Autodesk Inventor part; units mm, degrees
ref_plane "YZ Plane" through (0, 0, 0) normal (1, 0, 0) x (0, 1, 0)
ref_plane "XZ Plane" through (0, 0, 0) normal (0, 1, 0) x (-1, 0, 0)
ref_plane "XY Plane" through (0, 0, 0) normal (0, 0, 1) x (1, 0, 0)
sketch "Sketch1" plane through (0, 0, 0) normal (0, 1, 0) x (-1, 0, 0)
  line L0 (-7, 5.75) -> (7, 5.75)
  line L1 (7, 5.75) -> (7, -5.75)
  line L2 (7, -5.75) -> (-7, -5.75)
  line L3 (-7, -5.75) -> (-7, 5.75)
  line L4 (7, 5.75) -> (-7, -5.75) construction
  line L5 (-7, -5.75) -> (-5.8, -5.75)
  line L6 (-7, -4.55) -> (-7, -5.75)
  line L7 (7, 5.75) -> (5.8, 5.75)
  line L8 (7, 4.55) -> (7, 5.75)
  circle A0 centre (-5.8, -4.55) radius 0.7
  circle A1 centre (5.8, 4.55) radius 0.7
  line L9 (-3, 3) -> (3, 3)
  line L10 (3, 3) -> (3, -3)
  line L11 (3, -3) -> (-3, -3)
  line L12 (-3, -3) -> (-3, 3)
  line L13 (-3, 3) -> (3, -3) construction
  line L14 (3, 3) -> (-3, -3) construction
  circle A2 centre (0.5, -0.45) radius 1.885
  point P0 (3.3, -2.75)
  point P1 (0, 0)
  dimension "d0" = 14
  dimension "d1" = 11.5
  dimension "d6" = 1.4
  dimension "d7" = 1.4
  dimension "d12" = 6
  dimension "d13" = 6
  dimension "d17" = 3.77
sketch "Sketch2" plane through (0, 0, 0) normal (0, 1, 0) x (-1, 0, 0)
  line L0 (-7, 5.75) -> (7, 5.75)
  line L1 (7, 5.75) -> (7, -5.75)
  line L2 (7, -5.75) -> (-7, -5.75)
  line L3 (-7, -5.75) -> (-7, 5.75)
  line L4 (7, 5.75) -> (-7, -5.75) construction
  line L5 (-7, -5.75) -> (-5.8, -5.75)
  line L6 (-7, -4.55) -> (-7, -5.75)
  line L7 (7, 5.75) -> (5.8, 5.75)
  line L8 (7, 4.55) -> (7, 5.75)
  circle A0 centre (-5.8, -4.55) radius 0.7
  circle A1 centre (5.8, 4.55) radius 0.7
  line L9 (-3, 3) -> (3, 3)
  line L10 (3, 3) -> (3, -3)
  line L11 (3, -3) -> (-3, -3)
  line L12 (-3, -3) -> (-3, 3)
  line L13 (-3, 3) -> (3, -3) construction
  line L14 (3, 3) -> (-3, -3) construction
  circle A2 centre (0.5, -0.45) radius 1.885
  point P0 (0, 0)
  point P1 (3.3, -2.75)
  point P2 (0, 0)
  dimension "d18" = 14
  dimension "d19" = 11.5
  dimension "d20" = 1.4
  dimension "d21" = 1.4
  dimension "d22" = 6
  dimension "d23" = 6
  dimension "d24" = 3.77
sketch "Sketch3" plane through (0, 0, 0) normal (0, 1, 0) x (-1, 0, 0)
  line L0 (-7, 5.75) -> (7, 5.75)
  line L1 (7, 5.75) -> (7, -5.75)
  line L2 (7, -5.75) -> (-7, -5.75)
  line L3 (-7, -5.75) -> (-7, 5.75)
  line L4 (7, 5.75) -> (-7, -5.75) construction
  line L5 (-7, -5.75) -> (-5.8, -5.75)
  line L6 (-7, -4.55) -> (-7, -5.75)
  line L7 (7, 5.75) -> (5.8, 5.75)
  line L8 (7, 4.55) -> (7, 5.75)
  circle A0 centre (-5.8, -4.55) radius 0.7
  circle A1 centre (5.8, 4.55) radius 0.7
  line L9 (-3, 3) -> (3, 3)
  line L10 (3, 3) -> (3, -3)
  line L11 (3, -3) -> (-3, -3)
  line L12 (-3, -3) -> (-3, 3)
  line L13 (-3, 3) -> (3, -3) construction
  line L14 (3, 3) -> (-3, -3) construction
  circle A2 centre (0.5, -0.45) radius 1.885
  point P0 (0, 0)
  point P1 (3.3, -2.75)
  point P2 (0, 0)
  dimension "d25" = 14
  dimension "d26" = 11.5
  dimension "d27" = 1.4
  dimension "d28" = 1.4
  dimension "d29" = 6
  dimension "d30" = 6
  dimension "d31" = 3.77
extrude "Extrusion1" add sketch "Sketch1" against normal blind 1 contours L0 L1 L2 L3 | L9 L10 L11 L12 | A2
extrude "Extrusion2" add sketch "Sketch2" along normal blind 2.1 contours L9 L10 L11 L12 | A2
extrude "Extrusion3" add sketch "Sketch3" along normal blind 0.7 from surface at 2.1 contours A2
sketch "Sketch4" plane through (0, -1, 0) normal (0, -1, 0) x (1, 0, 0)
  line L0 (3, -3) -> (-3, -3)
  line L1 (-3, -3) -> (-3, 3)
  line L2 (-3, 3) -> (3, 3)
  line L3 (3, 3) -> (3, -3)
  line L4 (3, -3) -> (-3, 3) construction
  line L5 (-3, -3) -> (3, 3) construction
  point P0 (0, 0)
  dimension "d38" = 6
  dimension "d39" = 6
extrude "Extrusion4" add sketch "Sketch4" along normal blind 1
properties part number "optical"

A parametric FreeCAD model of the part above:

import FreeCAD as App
import Part
import Sketcher
Q = App.Units.Quantity


def add_polygon(sketch, points):
    """Adds a closed chain of lines whose ends are joined by coincident constraints."""
    first, n = sketch.GeometryCount, len(points)
    for a, b in zip(points, points[1:] + points[:1]):
        sketch.addGeometry(Part.LineSegment(App.Vector(*a, 0), App.Vector(*b, 0)), False)
    for i in range(n):
        sketch.addConstraint(Sketcher.Constraint("Coincident", first + i, 2, first + (i + 1) % n, 1))

doc = App.newDocument("Part")
body = doc.addObject("PartDesign::Body", "Body")

# Sketch on XZ plane
sketch1 = doc.addObject("Sketcher::SketchObject", "Sketch")
body.addObject(sketch1)
sketch1.AttachmentSupport = (doc.XZ_Plane, [""])
sketch1.MapMode = "FlatFace"
add_polygon(sketch1, [(7, 5.75), (7, -5.75), (-7, -5.75), (-7, 5.75)])  # lines 0-3
sketch1.addGeometry(Part.Circle(App.Vector(5.8, -4.55, 0), App.Vector(0, 0, 1), 0.7), False)  # 4
sketch1.addGeometry(Part.Circle(App.Vector(-5.8, 4.55, 0), App.Vector(0, 0, 1), 0.7), False)  # 5
sketch1.addConstraint(Sketcher.Constraint("Vertical", 0))
sketch1.addConstraint(Sketcher.Constraint("Horizontal", 1))
sketch1.addConstraint(Sketcher.Constraint("Vertical", 2))
sketch1.addConstraint(Sketcher.Constraint("Horizontal", 3))
sketch1.addConstraint(Sketcher.Constraint("Equal", 4, 5))
sketch1.addConstraint(Sketcher.Constraint("Symmetric", 4, 3, 5, 3, -1, 1))
sketch1.addConstraint(Sketcher.Constraint("Symmetric", 0, 2, 2, 2, -1, 1))
sketch1.addConstraint(Sketcher.Constraint("Diameter", 4, Q("1.4 mm")))
sketch1.addConstraint(Sketcher.Constraint("DistanceX", 1, 2, 1, 1, Q("14 mm")))
sketch1.addConstraint(Sketcher.Constraint("DistanceY", 0, 2, 0, 1, Q("11.5 mm")))
sketch1.addConstraint(Sketcher.Constraint("DistanceX", -1, 1, 4, 3, Q("5.8 mm")))
sketch1.addConstraint(Sketcher.Constraint("DistanceY", 4, 3, 5, 3, Q("9.1 mm")))
pad1 = doc.addObject("PartDesign::Pad", "Pad")
body.addObject(pad1)
pad1.Profile = sketch1
pad1.Length = 1

# Sketch on XZ plane
sketch2 = doc.addObject("Sketcher::SketchObject", "Sketch001")
body.addObject(sketch2)
sketch2.AttachmentSupport = (doc.XZ_Plane, [""])
sketch2.MapMode = "FlatFace"
add_polygon(sketch2, [(-3, 3), (3, 3), (3, -3), (-3, -3)])  # lines 0-3
sketch2.addConstraint(Sketcher.Constraint("Horizontal", 0))
sketch2.addConstraint(Sketcher.Constraint("Vertical", 1))
sketch2.addConstraint(Sketcher.Constraint("Horizontal", 2))
sketch2.addConstraint(Sketcher.Constraint("Vertical", 3))
sketch2.addConstraint(Sketcher.Constraint("Symmetric", 0, 2, 2, 2, -1, 1))
sketch2.addConstraint(Sketcher.Constraint("Equal", 2, 1))
sketch2.addConstraint(Sketcher.Constraint("DistanceX", 0, 1, 0, 2, Q("6 mm")))
pad2 = doc.addObject("PartDesign::Pad", "Pad001")
body.addObject(pad2)
pad2.Profile = sketch2
pad2.Length = 2.1
pad2.Reversed = True

# Sketch on XZ plane
sketch3 = doc.addObject("Sketcher::SketchObject", "Sketch002")
body.addObject(sketch3)
sketch3.AttachmentSupport = (doc.XZ_Plane, [""])
sketch3.MapMode = "FlatFace"
sketch3.AttachmentOffset = App.Placement(App.Vector(0, 0, -2.1), App.Rotation())
sketch3.addGeometry(Part.Circle(App.Vector(-0.5, -0.45, 0), App.Vector(0, 0, 1), 1.885), False)
sketch3.addConstraint(Sketcher.Constraint("Diameter", 0, Q("3.77 mm")))
sketch3.addConstraint(Sketcher.Constraint("DistanceX", 0, 3, -1, 1, Q("0.5 mm")))
sketch3.addConstraint(Sketcher.Constraint("DistanceY", 0, 3, -1, 1, Q("0.45 mm")))
pad3 = doc.addObject("PartDesign::Pad", "Pad002")
body.addObject(pad3)
pad3.Profile = sketch3
pad3.Length = 0.7
pad3.Reversed = True

# Sketch on XZ plane
sketch4 = doc.addObject("Sketcher::SketchObject", "Sketch003")
body.addObject(sketch4)
sketch4.AttachmentSupport = (doc.XZ_Plane, [""])
sketch4.MapMode = "FlatFace"
sketch4.AttachmentOffset = App.Placement(App.Vector(0, 0, 1), App.Rotation())
add_polygon(sketch4, [(-3, -3), (3, -3), (3, 3), (-3, 3)])  # lines 0-3
sketch4.addConstraint(Sketcher.Constraint("Horizontal", 0))
sketch4.addConstraint(Sketcher.Constraint("Vertical", 1))
sketch4.addConstraint(Sketcher.Constraint("Horizontal", 2))
sketch4.addConstraint(Sketcher.Constraint("Vertical", 3))
sketch4.addConstraint(Sketcher.Constraint("Symmetric", 0, 2, 2, 2, -1, 1))
sketch4.addConstraint(Sketcher.Constraint("Equal", 2, 1))
sketch4.addConstraint(Sketcher.Constraint("DistanceX", 0, 1, 0, 2, Q("6 mm")))
pad4 = doc.addObject("PartDesign::Pad", "Pad003")
body.addObject(pad4)
pad4.Profile = sketch4
pad4.Length = 1

doc.recompute()
